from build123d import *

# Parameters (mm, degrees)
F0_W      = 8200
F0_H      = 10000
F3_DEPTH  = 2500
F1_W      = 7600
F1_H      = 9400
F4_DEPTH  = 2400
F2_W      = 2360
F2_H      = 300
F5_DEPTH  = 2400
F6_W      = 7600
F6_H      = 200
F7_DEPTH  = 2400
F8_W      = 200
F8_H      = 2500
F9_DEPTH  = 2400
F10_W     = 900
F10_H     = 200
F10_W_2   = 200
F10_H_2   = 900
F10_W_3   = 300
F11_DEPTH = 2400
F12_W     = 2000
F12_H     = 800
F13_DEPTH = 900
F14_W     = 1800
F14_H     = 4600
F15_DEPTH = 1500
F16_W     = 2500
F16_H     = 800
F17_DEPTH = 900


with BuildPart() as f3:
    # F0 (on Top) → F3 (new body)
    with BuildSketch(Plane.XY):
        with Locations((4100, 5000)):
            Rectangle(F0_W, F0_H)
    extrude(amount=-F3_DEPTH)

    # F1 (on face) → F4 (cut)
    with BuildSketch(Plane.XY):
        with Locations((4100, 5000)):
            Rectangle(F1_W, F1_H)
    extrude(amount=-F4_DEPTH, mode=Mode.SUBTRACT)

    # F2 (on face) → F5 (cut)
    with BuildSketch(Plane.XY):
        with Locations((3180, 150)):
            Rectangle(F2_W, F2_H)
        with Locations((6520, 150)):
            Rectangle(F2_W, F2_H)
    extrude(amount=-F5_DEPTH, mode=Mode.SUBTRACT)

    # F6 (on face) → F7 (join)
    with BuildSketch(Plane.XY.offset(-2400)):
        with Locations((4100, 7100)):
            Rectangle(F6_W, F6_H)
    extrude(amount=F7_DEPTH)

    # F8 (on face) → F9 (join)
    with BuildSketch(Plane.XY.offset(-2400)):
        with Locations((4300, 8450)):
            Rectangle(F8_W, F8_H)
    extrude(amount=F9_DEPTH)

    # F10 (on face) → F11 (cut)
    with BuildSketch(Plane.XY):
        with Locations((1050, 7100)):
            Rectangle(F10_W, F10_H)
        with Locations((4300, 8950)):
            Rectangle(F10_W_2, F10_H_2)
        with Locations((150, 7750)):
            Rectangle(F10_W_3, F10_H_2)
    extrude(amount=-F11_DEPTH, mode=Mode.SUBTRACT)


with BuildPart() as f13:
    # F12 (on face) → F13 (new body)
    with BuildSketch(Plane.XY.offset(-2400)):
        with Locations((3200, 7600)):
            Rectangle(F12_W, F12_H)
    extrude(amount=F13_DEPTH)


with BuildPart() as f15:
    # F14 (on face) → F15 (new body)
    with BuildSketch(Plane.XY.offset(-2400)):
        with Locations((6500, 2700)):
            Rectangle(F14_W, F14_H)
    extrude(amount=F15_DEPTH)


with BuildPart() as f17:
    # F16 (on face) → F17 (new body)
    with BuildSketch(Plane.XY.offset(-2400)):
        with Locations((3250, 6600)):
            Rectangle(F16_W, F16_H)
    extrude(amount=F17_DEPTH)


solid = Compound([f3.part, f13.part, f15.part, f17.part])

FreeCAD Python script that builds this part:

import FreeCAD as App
import Part
import Sketcher


def add_polygon(sketch, points):
    """Adds a closed chain of lines whose ends are joined by coincident constraints."""
    first, n = sketch.GeometryCount, len(points)
    for a, b in zip(points, points[1:] + points[:1]):
        sketch.addGeometry(Part.LineSegment(App.Vector(*a, 0), App.Vector(*b, 0)), False)
    for i in range(n):
        sketch.addConstraint(Sketcher.Constraint("Coincident", first + i, 2, first + (i + 1) % n, 1))

doc = App.newDocument("Part")
params = doc.addObject("Spreadsheet::Sheet", "Params")
for row, (alias, value) in enumerate([
    ("sketch1_width", "8200 mm"),
    ("sketch1_height", "10000 mm"),
    ("pad1_length", "2500 mm"),
    ("sketch2_width", "7600 mm"),
    ("sketch2_height", "9400 mm"),
    ("pocket1_length", "2400 mm"),
    ("sketch3_width", "2360 mm"),
    ("sketch3_height", "300 mm"),
    ("pocket2_length", "2400 mm"),
    ("sketch4_width", "7600 mm"),
    ("sketch4_height", "200 mm"),
    ("pad2_length", "2400 mm"),
    ("sketch5_width", "200 mm"),
    ("sketch5_height", "2500 mm"),
    ("pad3_length", "2400 mm"),
    ("sketch6_width", "900 mm"),
    ("sketch6_width2", "200 mm"),
    ("sketch6_width3", "300 mm"),
    ("pocket3_length", "2400 mm"),
    ("sketch7_width", "2000 mm"),
    ("sketch7_height", "800 mm"),
    ("pad4_length", "900 mm"),
    ("sketch8_width", "1800 mm"),
    ("sketch8_height", "4600 mm"),
    ("pad5_length", "1500 mm"),
    ("sketch9_width", "2500 mm"),
    ("sketch9_height", "800 mm"),
    ("pad6_length", "900 mm"),
], start=1):
    params.set(f"A{row}", alias)
    params.set(f"B{row}", "=" + value)
    params.setAlias(f"B{row}", alias)

body = doc.addObject("PartDesign::Body", "Body")

# Sketch on XY plane
sketch1 = body.newObject("Sketcher::SketchObject", "Sketch")
sketch1.AttachmentSupport = (doc.getObject("XY_Plane"), [""])
sketch1.MapMode = "FlatFace"
add_polygon(sketch1, [(0, 10000), (0, 0), (8200, 0), (8200, 10000)])  # lines 0-3
sketch1.addConstraint(Sketcher.Constraint("Vertical", 0))
sketch1.addConstraint(Sketcher.Constraint("Horizontal", 1))
sketch1.addConstraint(Sketcher.Constraint("Vertical", 2))
sketch1.addConstraint(Sketcher.Constraint("Horizontal", 3))
sketch1.addConstraint(Sketcher.Constraint("Coincident", 0, 2, -1, 1))
sketch1.addConstraint(Sketcher.Constraint("DistanceX", 1, 1, 1, 2, 8200.0))
sketch1.addConstraint(Sketcher.Constraint("DistanceY", 0, 2, 0, 1, 10000.0))
sketch1.setExpression("Constraints[9]", "Params.sketch1_width")
sketch1.setExpression("Constraints[10]", "Params.sketch1_height")
pad1 = body.newObject("PartDesign::Pad", "Pad")
pad1.Profile = sketch1
pad1.setExpression("Length", "Params.pad1_length")
pad1.Reversed = True

# Sketch on XY plane
sketch2 = body.newObject("Sketcher::SketchObject", "Sketch001")
sketch2.AttachmentSupport = (doc.getObject("XY_Plane"), [""])
sketch2.MapMode = "FlatFace"
add_polygon(sketch2, [(300, 9700), (300, 300), (7900, 300), (7900, 9700)])  # lines 0-3
sketch2.addConstraint(Sketcher.Constraint("Vertical", 0))
sketch2.addConstraint(Sketcher.Constraint("Horizontal", 1))
sketch2.addConstraint(Sketcher.Constraint("Vertical", 2))
sketch2.addConstraint(Sketcher.Constraint("Horizontal", 3))
sketch2.addConstraint(Sketcher.Constraint("DistanceX", 1, 1, 1, 2, 7600.0))
sketch2.addConstraint(Sketcher.Constraint("DistanceY", 0, 2, 0, 1, 9400.0))
sketch2.addConstraint(Sketcher.Constraint("DistanceX", -1, 1, 0, 2, 300.0))
sketch2.addConstraint(Sketcher.Constraint("DistanceY", -1, 1, 0, 2, 300.0))
sketch2.setExpression("Constraints[8]", "Params.sketch2_width")
sketch2.setExpression("Constraints[9]", "Params.sketch2_height")
pocket1 = body.newObject("PartDesign::Pocket", "Pocket")
pocket1.Profile = sketch2
pocket1.setExpression("Length", "Params.pocket1_length")

# Sketch on XY plane
sketch3 = body.newObject("Sketcher::SketchObject", "Sketch002")
sketch3.AttachmentSupport = (doc.getObject("XY_Plane"), [""])
sketch3.MapMode = "FlatFace"
add_polygon(sketch3, [(2000, 300), (2000, 0), (4360, 0), (4360, 300)])  # lines 0-3
add_polygon(sketch3, [(5340, 300), (5340, 0), (7700, 0), (7700, 300)])  # lines 4-7
sketch3.addConstraint(Sketcher.Constraint("Vertical", 0))
sketch3.addConstraint(Sketcher.Constraint("Horizontal", 1))
sketch3.addConstraint(Sketcher.Constraint("Vertical", 2))
sketch3.addConstraint(Sketcher.Constraint("Horizontal", 3))
sketch3.addConstraint(Sketcher.Constraint("Vertical", 4))
sketch3.addConstraint(Sketcher.Constraint("Horizontal", 5))
sketch3.addConstraint(Sketcher.Constraint("Vertical", 6))
sketch3.addConstraint(Sketcher.Constraint("Horizontal", 7))
sketch3.addConstraint(Sketcher.Constraint("PointOnObject", 0, 2, -1))
sketch3.addConstraint(Sketcher.Constraint("PointOnObject", 4, 2, -1))
sketch3.addConstraint(Sketcher.Constraint("Horizontal", 3, 2, 6, 2))
sketch3.addConstraint(Sketcher.Constraint("Equal", 3, 5))
sketch3.addConstraint(Sketcher.Constraint("DistanceX", 1, 1, 1, 2, 2360.0))
sketch3.addConstraint(Sketcher.Constraint("DistanceY", 0, 2, 0, 1, 300.0))
sketch3.addConstraint(Sketcher.Constraint("DistanceX", -1, 1, 0, 2, 2000.0))
sketch3.addConstraint(Sketcher.Constraint("DistanceX", -1, 1, 4, 2, 5340.0))
sketch3.setExpression("Constraints[20]", "Params.sketch3_width")
sketch3.setExpression("Constraints[21]", "Params.sketch3_height")
pocket2 = body.newObject("PartDesign::Pocket", "Pocket001")
pocket2.Profile = sketch3
pocket2.setExpression("Length", "Params.pocket2_length")

# Sketch on XY plane
sketch4 = body.newObject("Sketcher::SketchObject", "Sketch003")
sketch4.AttachmentSupport = (doc.getObject("XY_Plane"), [""])
sketch4.MapMode = "FlatFace"
sketch4.AttachmentOffset = App.Placement(App.Vector(0, 0, -2400), App.Rotation())
add_polygon(sketch4, [(300, 7200), (300, 7000), (7900, 7000), (7900, 7200)])  # lines 0-3
sketch4.addConstraint(Sketcher.Constraint("Vertical", 0))
sketch4.addConstraint(Sketcher.Constraint("Horizontal", 1))
sketch4.addConstraint(Sketcher.Constraint("Vertical", 2))
sketch4.addConstraint(Sketcher.Constraint("Horizontal", 3))
sketch4.addConstraint(Sketcher.Constraint("DistanceX", 1, 1, 1, 2, 7600.0))
sketch4.addConstraint(Sketcher.Constraint("DistanceY", 0, 2, 0, 1, 200.0))
sketch4.addConstraint(Sketcher.Constraint("DistanceX", -1, 1, 0, 2, 300.0))
sketch4.addConstraint(Sketcher.Constraint("DistanceY", -1, 1, 0, 2, 7000.0))
sketch4.setExpression("Constraints[8]", "Params.sketch4_width")
sketch4.setExpression("Constraints[9]", "Params.sketch4_height")
pad2 = body.newObject("PartDesign::Pad", "Pad001")
pad2.Profile = sketch4
pad2.setExpression("Length", "Params.pad2_length")

# Sketch on XY plane
sketch5 = body.newObject("Sketcher::SketchObject", "Sketch004")
sketch5.AttachmentSupport = (doc.getObject("XY_Plane"), [""])
sketch5.MapMode = "FlatFace"
sketch5.AttachmentOffset = App.Placement(App.Vector(0, 0, -2400), App.Rotation())
add_polygon(sketch5, [(4200, 9700), (4200, 7200), (4400, 7200), (4400, 9700)])  # lines 0-3
sketch5.addConstraint(Sketcher.Constraint("Vertical", 0))
sketch5.addConstraint(Sketcher.Constraint("Horizontal", 1))
sketch5.addConstraint(Sketcher.Constraint("Vertical", 2))
sketch5.addConstraint(Sketcher.Constraint("Horizontal", 3))
sketch5.addConstraint(Sketcher.Constraint("DistanceX", 1, 1, 1, 2, 200.0))
sketch5.addConstraint(Sketcher.Constraint("DistanceY", 0, 2, 0, 1, 2500.0))
sketch5.addConstraint(Sketcher.Constraint("DistanceX", -1, 1, 0, 2, 4200.0))
sketch5.addConstraint(Sketcher.Constraint("DistanceY", -1, 1, 0, 2, 7200.0))
sketch5.setExpression("Constraints[8]", "Params.sketch5_width")
sketch5.setExpression("Constraints[9]", "Params.sketch5_height")
pad3 = body.newObject("PartDesign::Pad", "Pad002")
pad3.Profile = sketch5
pad3.setExpression("Length", "Params.pad3_length")

# Sketch on XY plane
sketch6 = body.newObject("Sketcher::SketchObject", "Sketch005")
sketch6.AttachmentSupport = (doc.getObject("XY_Plane"), [""])
sketch6.MapMode = "FlatFace"
add_polygon(sketch6, [(600, 7200), (600, 7000), (1500, 7000), (1500, 7200)])  # lines 0-3
add_polygon(sketch6, [(4200, 9400), (4200, 8500), (4400, 8500), (4400, 9400)])  # lines 4-7
add_polygon(sketch6, [(0, 8200), (0, 7300), (300, 7300), (300, 8200)])  # lines 8-11
sketch6.addConstraint(Sketcher.Constraint("Vertical", 0))
sketch6.addConstraint(Sketcher.Constraint("Horizontal", 1))
sketch6.addConstraint(Sketcher.Constraint("Vertical", 2))
sketch6.addConstraint(Sketcher.Constraint("Horizontal", 3))
sketch6.addConstraint(Sketcher.Constraint("Vertical", 4))
sketch6.addConstraint(Sketcher.Constraint("Horizontal", 5))
sketch6.addConstraint(Sketcher.Constraint("Vertical", 6))
sketch6.addConstraint(Sketcher.Constraint("Horizontal", 7))
sketch6.addConstraint(Sketcher.Constraint("Vertical", 8))
sketch6.addConstraint(Sketcher.Constraint("Horizontal", 9))
sketch6.addConstraint(Sketcher.Constraint("Vertical", 10))
sketch6.addConstraint(Sketcher.Constraint("Horizontal", 11))
sketch6.addConstraint(Sketcher.Constraint("PointOnObject", 8, 2, -2))
sketch6.addConstraint(Sketcher.Constraint("Equal", 7, 0))
sketch6.addConstraint(Sketcher.Constraint("Equal", 3, 4))
sketch6.addConstraint(Sketcher.Constraint("Equal", 6, 8))
sketch6.addConstraint(Sketcher.Constraint("DistanceX", 1, 1, 1, 2, 900.0))
sketch6.addConstraint(Sketcher.Constraint("DistanceX", 5, 1, 5, 2, 200.0))
sketch6.addConstraint(Sketcher.Constraint("DistanceX", 9, 1, 9, 2, 300.0))
sketch6.addConstraint(Sketcher.Constraint("DistanceX", -1, 1, 0, 2, 600.0))
sketch6.addConstraint(Sketcher.Constraint("DistanceY", -1, 1, 0, 2, 7000.0))
sketch6.addConstraint(Sketcher.Constraint("DistanceX", -1, 1, 4, 2, 4200.0))
sketch6.addConstraint(Sketcher.Constraint("DistanceY", -1, 1, 4, 2, 8500.0))
sketch6.addConstraint(Sketcher.Constraint("DistanceY", -1, 1, 8, 2, 7300.0))
sketch6.setExpression("Constraints[28]", "Params.sketch6_width")
sketch6.setExpression("Constraints[29]", "Params.sketch6_width2")
sketch6.setExpression("Constraints[30]", "Params.sketch6_width3")
pocket3 = body.newObject("PartDesign::Pocket", "Pocket002")
pocket3.Profile = sketch6
pocket3.setExpression("Length", "Params.pocket3_length")
body2 = doc.addObject("PartDesign::Body", "Body001")

# Sketch on XY plane
sketch7 = body2.newObject("Sketcher::SketchObject", "Sketch006")
sketch7.AttachmentSupport = (doc.getObject("XY_Plane001"), [""])
sketch7.MapMode = "FlatFace"
sketch7.AttachmentOffset = App.Placement(App.Vector(0, 0, -2400), App.Rotation())
add_polygon(sketch7, [(2200, 8000), (2200, 7200), (4200, 7200), (4200, 8000)])  # lines 0-3
sketch7.addConstraint(Sketcher.Constraint("Vertical", 0))
sketch7.addConstraint(Sketcher.Constraint("Horizontal", 1))
sketch7.addConstraint(Sketcher.Constraint("Vertical", 2))
sketch7.addConstraint(Sketcher.Constraint("Horizontal", 3))
sketch7.addConstraint(Sketcher.Constraint("DistanceX", 1, 1, 1, 2, 2000.0))
sketch7.addConstraint(Sketcher.Constraint("DistanceY", 0, 2, 0, 1, 800.0))
sketch7.addConstraint(Sketcher.Constraint("DistanceX", -1, 1, 0, 2, 2200.0))
sketch7.addConstraint(Sketcher.Constraint("DistanceY", -1, 1, 0, 2, 7200.0))
sketch7.setExpression("Constraints[8]", "Params.sketch7_width")
sketch7.setExpression("Constraints[9]", "Params.sketch7_height")
pad4 = body2.newObject("PartDesign::Pad", "Pad003")
pad4.Profile = sketch7
pad4.setExpression("Length", "Params.pad4_length")
body3 = doc.addObject("PartDesign::Body", "Body002")

# Sketch on XY plane
sketch8 = body3.newObject("Sketcher::SketchObject", "Sketch007")
sketch8.AttachmentSupport = (doc.getObject("XY_Plane002"), [""])
sketch8.MapMode = "FlatFace"
sketch8.AttachmentOffset = App.Placement(App.Vector(0, 0, -2400), App.Rotation())
add_polygon(sketch8, [(5600, 5000), (5600, 400), (7400, 400), (7400, 5000)])  # lines 0-3
sketch8.addConstraint(Sketcher.Constraint("Vertical", 0))
sketch8.addConstraint(Sketcher.Constraint("Horizontal", 1))
sketch8.addConstraint(Sketcher.Constraint("Vertical", 2))
sketch8.addConstraint(Sketcher.Constraint("Horizontal", 3))
sketch8.addConstraint(Sketcher.Constraint("DistanceX", 1, 1, 1, 2, 1800.0))
sketch8.addConstraint(Sketcher.Constraint("DistanceY", 0, 2, 0, 1, 4600.0))
sketch8.addConstraint(Sketcher.Constraint("DistanceX", -1, 1, 0, 2, 5600.0))
sketch8.addConstraint(Sketcher.Constraint("DistanceY", -1, 1, 0, 2, 400.0))
sketch8.setExpression("Constraints[8]", "Params.sketch8_width")
sketch8.setExpression("Constraints[9]", "Params.sketch8_height")
pad5 = body3.newObject("PartDesign::Pad", "Pad004")
pad5.Profile = sketch8
pad5.setExpression("Length", "Params.pad5_length")
body4 = doc.addObject("PartDesign::Body", "Body003")

# Sketch on XY plane
sketch9 = body4.newObject("Sketcher::SketchObject", "Sketch008")
sketch9.AttachmentSupport = (doc.getObject("XY_Plane003"), [""])
sketch9.MapMode = "FlatFace"
sketch9.AttachmentOffset = App.Placement(App.Vector(0, 0, -2400), App.Rotation())
add_polygon(sketch9, [(2000, 7000), (2000, 6200), (4500, 6200), (4500, 7000)])  # lines 0-3
sketch9.addConstraint(Sketcher.Constraint("Vertical", 0))
sketch9.addConstraint(Sketcher.Constraint("Horizontal", 1))
sketch9.addConstraint(Sketcher.Constraint("Vertical", 2))
sketch9.addConstraint(Sketcher.Constraint("Horizontal", 3))
sketch9.addConstraint(Sketcher.Constraint("DistanceX", 1, 1, 1, 2, 2500.0))
sketch9.addConstraint(Sketcher.Constraint("DistanceY", 0, 2, 0, 1, 800.0))
sketch9.addConstraint(Sketcher.Constraint("DistanceX", -1, 1, 0, 2, 2000.0))
sketch9.addConstraint(Sketcher.Constraint("DistanceY", -1, 1, 0, 2, 6200.0))
sketch9.setExpression("Constraints[8]", "Params.sketch9_width")
sketch9.setExpression("Constraints[9]", "Params.sketch9_height")
pad6 = body4.newObject("PartDesign::Pad", "Pad005")
pad6.Profile = sketch9
pad6.setExpression("Length", "Params.pad6_length")

doc.recompute()
